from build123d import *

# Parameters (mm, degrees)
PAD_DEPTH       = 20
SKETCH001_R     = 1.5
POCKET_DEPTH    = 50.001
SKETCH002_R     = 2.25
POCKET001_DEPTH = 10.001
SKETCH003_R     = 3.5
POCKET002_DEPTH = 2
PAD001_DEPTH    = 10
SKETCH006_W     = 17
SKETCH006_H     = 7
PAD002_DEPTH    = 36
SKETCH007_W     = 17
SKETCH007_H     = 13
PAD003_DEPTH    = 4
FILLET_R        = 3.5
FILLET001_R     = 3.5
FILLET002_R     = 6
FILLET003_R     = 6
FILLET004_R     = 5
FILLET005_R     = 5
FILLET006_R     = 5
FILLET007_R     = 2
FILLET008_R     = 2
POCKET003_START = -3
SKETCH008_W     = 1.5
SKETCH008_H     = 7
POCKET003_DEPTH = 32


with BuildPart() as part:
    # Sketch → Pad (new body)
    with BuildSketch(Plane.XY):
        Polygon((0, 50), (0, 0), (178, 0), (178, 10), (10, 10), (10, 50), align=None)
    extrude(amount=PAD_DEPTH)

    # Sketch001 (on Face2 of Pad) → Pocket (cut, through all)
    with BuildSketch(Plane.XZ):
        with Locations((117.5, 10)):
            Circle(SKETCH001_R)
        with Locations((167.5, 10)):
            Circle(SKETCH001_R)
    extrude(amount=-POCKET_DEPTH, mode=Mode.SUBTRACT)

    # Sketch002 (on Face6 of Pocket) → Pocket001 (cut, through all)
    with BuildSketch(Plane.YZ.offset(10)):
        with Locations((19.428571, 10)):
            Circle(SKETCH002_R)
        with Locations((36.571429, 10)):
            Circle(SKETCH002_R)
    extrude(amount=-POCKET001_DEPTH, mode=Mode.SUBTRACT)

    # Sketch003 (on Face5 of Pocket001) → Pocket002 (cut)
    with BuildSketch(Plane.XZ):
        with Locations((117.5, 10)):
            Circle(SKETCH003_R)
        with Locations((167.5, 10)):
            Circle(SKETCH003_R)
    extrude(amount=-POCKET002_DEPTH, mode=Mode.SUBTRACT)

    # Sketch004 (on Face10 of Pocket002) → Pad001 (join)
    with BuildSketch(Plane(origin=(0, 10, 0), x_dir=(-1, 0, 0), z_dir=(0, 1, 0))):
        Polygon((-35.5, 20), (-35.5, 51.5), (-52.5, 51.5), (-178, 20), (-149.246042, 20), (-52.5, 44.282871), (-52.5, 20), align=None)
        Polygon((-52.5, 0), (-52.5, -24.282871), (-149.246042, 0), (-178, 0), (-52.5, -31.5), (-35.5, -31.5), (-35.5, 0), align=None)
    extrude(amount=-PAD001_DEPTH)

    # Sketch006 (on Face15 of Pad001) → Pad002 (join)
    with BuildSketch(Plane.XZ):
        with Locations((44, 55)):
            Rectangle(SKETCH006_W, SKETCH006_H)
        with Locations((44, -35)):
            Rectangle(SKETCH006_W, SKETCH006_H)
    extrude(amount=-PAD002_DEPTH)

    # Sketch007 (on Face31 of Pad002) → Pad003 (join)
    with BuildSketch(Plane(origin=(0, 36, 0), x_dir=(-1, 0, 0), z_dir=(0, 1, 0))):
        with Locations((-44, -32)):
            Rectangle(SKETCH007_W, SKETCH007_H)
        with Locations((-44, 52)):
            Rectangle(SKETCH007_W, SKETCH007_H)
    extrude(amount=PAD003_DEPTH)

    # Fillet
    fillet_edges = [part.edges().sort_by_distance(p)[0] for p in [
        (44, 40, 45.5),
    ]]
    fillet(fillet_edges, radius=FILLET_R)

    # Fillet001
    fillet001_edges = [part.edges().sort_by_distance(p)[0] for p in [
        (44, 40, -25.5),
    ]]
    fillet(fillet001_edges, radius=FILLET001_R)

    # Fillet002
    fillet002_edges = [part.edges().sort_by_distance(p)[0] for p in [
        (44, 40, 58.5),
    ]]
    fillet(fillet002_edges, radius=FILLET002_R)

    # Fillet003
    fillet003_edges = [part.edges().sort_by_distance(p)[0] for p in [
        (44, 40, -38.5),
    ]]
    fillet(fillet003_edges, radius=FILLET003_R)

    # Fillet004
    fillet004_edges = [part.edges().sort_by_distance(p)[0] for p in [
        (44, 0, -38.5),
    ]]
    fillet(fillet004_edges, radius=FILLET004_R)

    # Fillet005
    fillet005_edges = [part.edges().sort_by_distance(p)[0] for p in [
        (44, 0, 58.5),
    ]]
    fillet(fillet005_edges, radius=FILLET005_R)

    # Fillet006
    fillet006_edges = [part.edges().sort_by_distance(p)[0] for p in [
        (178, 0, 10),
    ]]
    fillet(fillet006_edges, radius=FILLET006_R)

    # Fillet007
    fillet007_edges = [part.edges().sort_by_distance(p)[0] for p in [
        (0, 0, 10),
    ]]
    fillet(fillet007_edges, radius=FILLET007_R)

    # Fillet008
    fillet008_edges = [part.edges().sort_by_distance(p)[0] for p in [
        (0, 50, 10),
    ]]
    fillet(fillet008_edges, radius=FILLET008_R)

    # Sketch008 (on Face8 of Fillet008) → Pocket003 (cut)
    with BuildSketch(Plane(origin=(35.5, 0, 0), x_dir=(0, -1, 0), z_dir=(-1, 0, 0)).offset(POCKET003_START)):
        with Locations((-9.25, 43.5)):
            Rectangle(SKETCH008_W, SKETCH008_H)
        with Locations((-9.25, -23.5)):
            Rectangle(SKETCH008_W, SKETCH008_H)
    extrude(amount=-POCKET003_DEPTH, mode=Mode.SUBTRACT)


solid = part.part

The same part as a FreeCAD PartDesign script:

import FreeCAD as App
import Part
import Sketcher
Q = App.Units.Quantity


def edges_at(feature, points):
    """Names of the edges that pass closest to the given points."""
    edges = feature.Shape.Edges
    near = lambda p: min(range(len(edges)), key=lambda i: edges[i].distToShape(Part.Vertex(*p))[0])
    return sorted({f"Edge{near(p) + 1}" for p in points})


def add_polygon(sketch, points):
    """Adds a closed chain of lines whose ends are joined by coincident constraints."""
    first, n = sketch.GeometryCount, len(points)
    for a, b in zip(points, points[1:] + points[:1]):
        sketch.addGeometry(Part.LineSegment(App.Vector(*a, 0), App.Vector(*b, 0)), False)
    for i in range(n):
        sketch.addConstraint(Sketcher.Constraint("Coincident", first + i, 2, first + (i + 1) % n, 1))

doc = App.newDocument("Part")
body = doc.addObject("PartDesign::Body", "Body")

# Sketch on XY plane
sketch1 = body.newObject("Sketcher::SketchObject", "Sketch")
sketch1.AttachmentSupport = (doc.getObject("XY_Plane"), [""])
sketch1.MapMode = "FlatFace"
add_polygon(sketch1, [(0, 50), (0, 0), (178, 0), (178, 10), (10, 10), (10, 50)])  # lines 0-5
sketch1.addConstraint([
    Sketcher.Constraint("Vertical", 0),
    Sketcher.Constraint("Horizontal", 1),
    Sketcher.Constraint("Vertical", 2),
    Sketcher.Constraint("Horizontal", 3),
    Sketcher.Constraint("Vertical", 4),
    Sketcher.Constraint("Horizontal", 5),
    Sketcher.Constraint("Coincident", 0, 2, -1, 1),
    Sketcher.Constraint("Equal", 5, 2),
    Sketcher.Constraint("DistanceX", 1, 1, 1, 2, Q("178 mm")),
    Sketcher.Constraint("DistanceX", 3, 2, 3, 1, Q("168 mm")),
    Sketcher.Constraint("DistanceY", 0, 2, 0, 1, Q("50 mm")),
])
pad1 = body.newObject("PartDesign::Pad", "Pad")
pad1.Profile = sketch1
pad1.Length = 20

# Sketch on XZ plane
sketch2 = body.newObject("Sketcher::SketchObject", "Sketch001")
sketch2.AttachmentSupport = (doc.getObject("XZ_Plane"), [""])
sketch2.MapMode = "FlatFace"
sketch2.addGeometry([
    Part.Circle(App.Vector(117.5, 10, 0), App.Vector(0, 0, 1), 1.5),
    Part.Circle(App.Vector(167.5, 10, 0), App.Vector(0, 0, 1), 1.5),
], False)
sketch2.addConstraint([
    Sketcher.Constraint("Equal", 0, 1),
    Sketcher.Constraint("Horizontal", 0, 3, 1, 3),
    Sketcher.Constraint("Diameter", 0, Q("3 mm")),
    Sketcher.Constraint("DistanceY", -1, 1, 0, 3, Q("10 mm")),
    Sketcher.Constraint("DistanceX", 0, 3, 1, 3, Q("50 mm")),
    Sketcher.Constraint("DistanceX", -1, 1, 0, 3, Q("117.5 mm")),
])
pocket1 = body.newObject("PartDesign::Pocket", "Pocket")
pocket1.Profile = sketch2
pocket1.Type = "ThroughAll"

# Sketch on YZ plane
sketch3 = body.newObject("Sketcher::SketchObject", "Sketch002")
sketch3.AttachmentSupport = (doc.getObject("YZ_Plane"), [""])
sketch3.MapMode = "FlatFace"
sketch3.AttachmentOffset = App.Placement(App.Vector(0, 0, 10), App.Rotation())
sketch3.addGeometry([
    Part.Circle(App.Vector(19.4, 10, 0), App.Vector(0, 0, 1), 2.2),
    Part.Circle(App.Vector(36.6, 10, 0), App.Vector(0, 0, 1), 2.2),
], False)
sketch3.addConstraint([
    Sketcher.Constraint("Equal", 0, 1),
    Sketcher.Constraint("Horizontal", 0, 3, 1, 3),
    Sketcher.Constraint("Diameter", 0, Q("4.5 mm")),
    Sketcher.Constraint("DistanceY", -1, 1, 0, 3, Q("10 mm")),
    Sketcher.Constraint("DistanceX", -1, 1, 0, 3, Q("19.428571 mm")),
    Sketcher.Constraint("DistanceX", -1, 1, 1, 3, Q("36.571429 mm")),
])
pocket2 = body.newObject("PartDesign::Pocket", "Pocket001")
pocket2.Profile = sketch3
pocket2.Type = "ThroughAll"

# Sketch on XZ plane
sketch4 = body.newObject("Sketcher::SketchObject", "Sketch003")
sketch4.AttachmentSupport = (doc.getObject("XZ_Plane"), [""])
sketch4.MapMode = "FlatFace"
sketch4.addGeometry([
    Part.Circle(App.Vector(117.5, 10, 0), App.Vector(0, 0, 1), 3.5),
    Part.Circle(App.Vector(167.5, 10, 0), App.Vector(0, 0, 1), 3.5),
], False)
sketch4.addConstraint([
    Sketcher.Constraint("Equal", 0, 1),
    Sketcher.Constraint("Horizontal", 0, 3, 1, 3),
    Sketcher.Constraint("Diameter", 0, Q("7 mm")),
    Sketcher.Constraint("DistanceY", -1, 1, 0, 3, Q("10 mm")),
    Sketcher.Constraint("DistanceX", 0, 3, 1, 3, Q("50 mm")),
    Sketcher.Constraint("DistanceX", -1, 1, 0, 3, Q("117.5 mm")),
])
pocket3 = body.newObject("PartDesign::Pocket", "Pocket002")
pocket3.Profile = sketch4
pocket3.Length = 2

# Sketch on XZ plane
sketch5 = body.newObject("Sketcher::SketchObject", "Sketch004")
sketch5.AttachmentSupport = (doc.getObject("XZ_Plane"), [""])
sketch5.MapMode = "FlatFace"
sketch5.AttachmentOffset = App.Placement(App.Vector(0, 0, -10), App.Rotation())
add_polygon(sketch5, [(36, 20), (36, 52), (52, 52), (178, 20), (149, 20), (52, 44), (52, 20)])  # lines 0-6
add_polygon(sketch5, [(52, 0), (52, -24), (149, 0), (178, 0), (52, -32), (36, -32), (36, 0)])  # lines 7-13
sketch5.addConstraint([
    Sketcher.Constraint("Vertical", 0),
    Sketcher.Constraint("Horizontal", 1),
    Sketcher.Constraint("Horizontal", 3),
    Sketcher.Constraint("Vertical", 5),
    Sketcher.Constraint("Horizontal", 6),
    Sketcher.Constraint("Vertical", 7),
    Sketcher.Constraint("Horizontal", 9),
    Sketcher.Constraint("Horizontal", 11),
    Sketcher.Constraint("Vertical", 12),
    Sketcher.Constraint("Horizontal", 13),
    Sketcher.Constraint("PointOnObject", 8, 2, -1),
    Sketcher.Constraint("PointOnObject", 12, 2, -1),
    Sketcher.Constraint("Parallel", 2, 4),
    Sketcher.Constraint("Parallel", 8, 10),
    Sketcher.Constraint("Horizontal", 3, 2, 5, 2),
    Sketcher.Constraint("Vertical", 1, 2, 4, 2),
    Sketcher.Constraint("Vertical", 5, 2, 7, 2),
    Sketcher.Constraint("Vertical", 3, 2, 8, 2),
    Sketcher.Constraint("Vertical", 2, 2, 9, 2),
    Sketcher.Constraint("Vertical", 7, 2, 10, 2),
    Sketcher.Constraint("Vertical", 6, 2, 11, 2),
    Sketcher.Constraint("Equal", 5, 7),
    Sketcher.Constraint("DistanceX", 1, 1, 1, 2, Q("17 mm")),
    Sketcher.Constraint("DistanceY", 0, 1, 0, 2, Q("31.5 mm")),
    Sketcher.Constraint("DistanceX", -1, 1, 2, 2, Q("178 mm")),
    Sketcher.Constraint("DistanceY", -1, 1, 2, 2, Q("20 mm")),
    Sketcher.Constraint("DistanceX", -1, 1, 0, 2, Q("35.5 mm")),
    Sketcher.Constraint("DistanceX", 3, 2, 3, 1, Q("28.753958 mm")),
])
pad2 = body.newObject("PartDesign::Pad", "Pad001")
pad2.Profile = sketch5
pad2.Length = 10

# Sketch on XZ plane
sketch6 = body.newObject("Sketcher::SketchObject", "Sketch005")
sketch6.AttachmentSupport = (doc.getObject("XZ_Plane"), [""])
sketch6.MapMode = "FlatFace"
add_polygon(sketch6, [(36, 58), (36, 52), (52, 52), (52, 58)])  # lines 0-3
add_polygon(sketch6, [(36, -32), (36, -38), (52, -38), (52, -32)])  # lines 4-7
sketch6.addConstraint([
    Sketcher.Constraint("Vertical", 0),
    Sketcher.Constraint("Horizontal", 1),
    Sketcher.Constraint("Vertical", 2),
    Sketcher.Constraint("Horizontal", 3),
    Sketcher.Constraint("Vertical", 4),
    Sketcher.Constraint("Horizontal", 5),
    Sketcher.Constraint("Vertical", 6),
    Sketcher.Constraint("Horizontal", 7),
    Sketcher.Constraint("Vertical", 3, 2, 4, 2),
    Sketcher.Constraint("Vertical", 2, 2, 5, 2),
    Sketcher.Constraint("Equal", 2, 4),
    Sketcher.Constraint("DistanceX", 1, 1, 1, 2, Q("17 mm")),
    Sketcher.Constraint("DistanceY", 0, 2, 0, 1, Q("7 mm")),
    Sketcher.Constraint("DistanceY", 4, 2, 0, 2, Q("90 mm")),
    Sketcher.Constraint("DistanceX", -1, 1, 0, 2, Q("35.5 mm")),
    Sketcher.Constraint("DistanceY", -1, 1, 0, 2, Q("51.5 mm")),
])
pad3 = body.newObject("PartDesign::Pad", "Pad002")
pad3.Profile = sketch6
pad3.Length = 36
pad3.Reversed = True

# Sketch on XZ plane
sketch7 = body.newObject("Sketcher::SketchObject", "Sketch006")
sketch7.AttachmentSupport = (doc.getObject("XZ_Plane"), [""])
sketch7.MapMode = "FlatFace"
sketch7.AttachmentOffset = App.Placement(App.Vector(0, 0, -36), App.Rotation())
add_polygon(sketch7, [(52, -26), (52, -38), (36, -38), (36, -26)])  # lines 0-3
add_polygon(sketch7, [(52, 58), (52, 46), (36, 46), (36, 58)])  # lines 4-7
sketch7.addConstraint([
    Sketcher.Constraint("Vertical", 0),
    Sketcher.Constraint("Horizontal", 1),
    Sketcher.Constraint("Vertical", 2),
    Sketcher.Constraint("Horizontal", 3),
    Sketcher.Constraint("Vertical", 4),
    Sketcher.Constraint("Horizontal", 5),
    Sketcher.Constraint("Vertical", 6),
    Sketcher.Constraint("Horizontal", 7),
    Sketcher.Constraint("Vertical", 3, 2, 4, 2),
    Sketcher.Constraint("Vertical", 2, 2, 5, 2),
    Sketcher.Constraint("Equal", 2, 4),
    Sketcher.Constraint("DistanceX", 1, 2, 1, 1, Q("17 mm")),
    Sketcher.Constraint("DistanceY", 0, 2, 0, 1, Q("13 mm")),
    Sketcher.Constraint("DistanceY", 3, 2, 4, 2, Q("71 mm")),
    Sketcher.Constraint("DistanceX", -1, 1, 0, 2, Q("52.5 mm")),
    Sketcher.Constraint("DistanceY", 0, 2, -1, 1, Q("38.5 mm")),
])
pad4 = body.newObject("PartDesign::Pad", "Pad003")
pad4.Profile = sketch7
pad4.Length = 4
pad4.Reversed = True
doc.recompute()

fillet = body.newObject("PartDesign::Fillet", "Fillet")
fillet.Base = (pad4, edges_at(pad4, [(44, 40, 45.5)]))
fillet.Radius = 3.5
doc.recompute()

fillet2 = body.newObject("PartDesign::Fillet", "Fillet001")
fillet2.Base = (fillet, edges_at(fillet, [(44, 40, -25.5)]))
fillet2.Radius = 3.5
doc.recompute()

fillet3 = body.newObject("PartDesign::Fillet", "Fillet002")
fillet3.Base = (fillet2, edges_at(fillet2, [(44, 40, 58.5)]))
fillet3.Radius = 6
doc.recompute()

fillet4 = body.newObject("PartDesign::Fillet", "Fillet003")
fillet4.Base = (fillet3, edges_at(fillet3, [(44, 40, -38.5)]))
fillet4.Radius = 6
doc.recompute()

fillet5 = body.newObject("PartDesign::Fillet", "Fillet004")
fillet5.Base = (fillet4, edges_at(fillet4, [(44, 0, -38.5)]))
fillet5.Radius = 5
doc.recompute()

fillet6 = body.newObject("PartDesign::Fillet", "Fillet005")
fillet6.Base = (fillet5, edges_at(fillet5, [(44, 0, 58.5)]))
fillet6.Radius = 5
doc.recompute()

fillet7 = body.newObject("PartDesign::Fillet", "Fillet006")
fillet7.Base = (fillet6, edges_at(fillet6, [(178, 0, 10)]))
fillet7.Radius = 5
doc.recompute()

fillet8 = body.newObject("PartDesign::Fillet", "Fillet007")
fillet8.Base = (fillet7, edges_at(fillet7, [(0, 0, 10)]))
fillet8.Radius = 2
doc.recompute()

fillet9 = body.newObject("PartDesign::Fillet", "Fillet008")
fillet9.Base = (fillet8, edges_at(fillet8, [(0, 50, 10)]))
fillet9.Radius = 2

# Sketch on YZ plane
sketch8 = body.newObject("Sketcher::SketchObject", "Sketch007")
sketch8.AttachmentSupport = (doc.getObject("YZ_Plane"), [""])
sketch8.MapMode = "FlatFace"
sketch8.AttachmentOffset = App.Placement(App.Vector(0, 0, 38.5), App.Rotation())
add_polygon(sketch8, [(10, 47), (10, 40), (8.5, 40), (8.5, 47)])  # lines 0-3
add_polygon(sketch8, [(10, -20), (10, -27), (8.5, -27), (8.5, -20)])  # lines 4-7
sketch8.addConstraint([
    Sketcher.Constraint("Vertical", 0),
    Sketcher.Constraint("Horizontal", 1),
    Sketcher.Constraint("Vertical", 2),
    Sketcher.Constraint("Horizontal", 3),
    Sketcher.Constraint("Vertical", 4),
    Sketcher.Constraint("Horizontal", 5),
    Sketcher.Constraint("Vertical", 6),
    Sketcher.Constraint("Horizontal", 7),
    Sketcher.Constraint("Vertical", 3, 2, 4, 2),
    Sketcher.Constraint("Vertical", 2, 2, 5, 2),
    Sketcher.Constraint("Equal", 2, 4),
    Sketcher.Constraint("DistanceY", 0, 2, 0, 1, Q("7 mm")),
    Sketcher.Constraint("DistanceX", 1, 2, 1, 1, Q("1.5 mm")),
    Sketcher.Constraint("DistanceX", -1, 1, 0, 2, Q("10 mm")),
    Sketcher.Constraint("DistanceY", -1, 1, 0, 2, Q("40 mm")),
    Sketcher.Constraint("DistanceY", 4, 2, -1, 1, Q("27 mm")),
])
pocket4 = body.newObject("PartDesign::Pocket", "Pocket003")
pocket4.Profile = sketch8
pocket4.Length = 32
pocket4.Reversed = True

doc.recompute()
